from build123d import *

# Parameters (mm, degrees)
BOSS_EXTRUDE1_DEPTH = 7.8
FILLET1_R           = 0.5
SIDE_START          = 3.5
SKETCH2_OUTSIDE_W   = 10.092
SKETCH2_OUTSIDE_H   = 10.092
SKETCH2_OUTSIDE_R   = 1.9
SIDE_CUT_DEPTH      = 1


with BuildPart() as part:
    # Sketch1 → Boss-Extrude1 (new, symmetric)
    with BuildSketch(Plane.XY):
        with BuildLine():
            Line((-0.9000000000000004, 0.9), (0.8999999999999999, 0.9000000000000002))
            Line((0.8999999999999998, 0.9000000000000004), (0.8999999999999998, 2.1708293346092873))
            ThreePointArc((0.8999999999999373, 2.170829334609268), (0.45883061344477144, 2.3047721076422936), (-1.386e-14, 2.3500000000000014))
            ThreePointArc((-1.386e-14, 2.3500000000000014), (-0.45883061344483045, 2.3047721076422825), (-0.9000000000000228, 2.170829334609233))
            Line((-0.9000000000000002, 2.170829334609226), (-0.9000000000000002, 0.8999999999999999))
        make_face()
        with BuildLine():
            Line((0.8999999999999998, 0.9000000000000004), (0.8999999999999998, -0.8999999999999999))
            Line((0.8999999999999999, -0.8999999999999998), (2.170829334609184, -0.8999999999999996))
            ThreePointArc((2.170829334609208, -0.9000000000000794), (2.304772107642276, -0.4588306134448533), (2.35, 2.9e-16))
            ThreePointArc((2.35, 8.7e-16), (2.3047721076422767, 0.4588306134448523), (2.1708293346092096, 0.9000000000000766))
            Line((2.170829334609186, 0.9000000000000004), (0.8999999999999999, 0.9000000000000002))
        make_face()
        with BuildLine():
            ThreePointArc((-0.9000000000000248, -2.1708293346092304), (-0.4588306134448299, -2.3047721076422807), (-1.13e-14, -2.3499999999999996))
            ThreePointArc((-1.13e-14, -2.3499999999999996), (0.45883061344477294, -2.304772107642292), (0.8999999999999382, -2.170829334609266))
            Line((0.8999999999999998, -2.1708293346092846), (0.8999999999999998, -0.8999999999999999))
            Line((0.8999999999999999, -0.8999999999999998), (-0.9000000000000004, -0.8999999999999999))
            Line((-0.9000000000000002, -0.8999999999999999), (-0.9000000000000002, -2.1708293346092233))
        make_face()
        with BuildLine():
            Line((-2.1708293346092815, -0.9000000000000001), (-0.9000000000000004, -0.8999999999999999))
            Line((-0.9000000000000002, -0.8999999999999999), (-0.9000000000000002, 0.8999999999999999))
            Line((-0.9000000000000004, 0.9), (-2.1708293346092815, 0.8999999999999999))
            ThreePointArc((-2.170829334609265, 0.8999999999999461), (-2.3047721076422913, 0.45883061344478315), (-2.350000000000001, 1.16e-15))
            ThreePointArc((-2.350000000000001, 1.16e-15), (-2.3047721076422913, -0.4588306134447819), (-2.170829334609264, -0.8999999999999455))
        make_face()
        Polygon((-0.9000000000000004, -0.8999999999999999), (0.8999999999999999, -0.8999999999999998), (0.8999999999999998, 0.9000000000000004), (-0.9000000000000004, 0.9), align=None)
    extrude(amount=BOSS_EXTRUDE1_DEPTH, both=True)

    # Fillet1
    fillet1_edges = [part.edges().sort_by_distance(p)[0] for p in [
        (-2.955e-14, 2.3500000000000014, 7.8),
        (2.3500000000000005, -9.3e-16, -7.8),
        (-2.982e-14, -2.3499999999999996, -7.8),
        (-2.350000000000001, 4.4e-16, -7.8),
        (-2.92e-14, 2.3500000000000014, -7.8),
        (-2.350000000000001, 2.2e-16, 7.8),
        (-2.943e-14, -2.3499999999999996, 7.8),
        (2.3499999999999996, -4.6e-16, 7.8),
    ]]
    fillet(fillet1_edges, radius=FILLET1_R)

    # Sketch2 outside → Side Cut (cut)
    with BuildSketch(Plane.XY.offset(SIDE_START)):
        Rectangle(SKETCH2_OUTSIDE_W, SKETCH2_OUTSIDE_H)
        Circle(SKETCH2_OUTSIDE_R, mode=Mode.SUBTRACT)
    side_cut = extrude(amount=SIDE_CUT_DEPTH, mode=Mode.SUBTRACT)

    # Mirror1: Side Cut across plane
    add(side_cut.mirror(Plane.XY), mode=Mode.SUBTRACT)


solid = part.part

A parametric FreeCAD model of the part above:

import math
import FreeCAD as App
import Part
import Sketcher
Q = App.Units.Quantity


def edges_at(feature, points):
    """Names of the edges that pass closest to the given points."""
    edges = feature.Shape.Edges
    near = lambda p: min(range(len(edges)), key=lambda i: edges[i].distToShape(Part.Vertex(*p))[0])
    return sorted({f"Edge{near(p) + 1}" for p in points})


def add_polygon(sketch, points):
    """Adds a closed chain of lines whose ends are joined by coincident constraints."""
    first, n = sketch.GeometryCount, len(points)
    for a, b in zip(points, points[1:] + points[:1]):
        sketch.addGeometry(Part.LineSegment(App.Vector(*a, 0), App.Vector(*b, 0)), False)
    for i in range(n):
        sketch.addConstraint(Sketcher.Constraint("Coincident", first + i, 2, first + (i + 1) % n, 1))

doc = App.newDocument("Part")
body = doc.addObject("PartDesign::Body", "Body")

sketch1 = body.newObject("Sketcher::SketchObject", "Sketch")
sketch1.AttachmentSupport = (doc.getObject("XY_Plane"), [""])
sketch1.MapMode = "FlatFace"
sketch1.addGeometry(Part.LineSegment(App.Vector(0.9, 0.9, 0), App.Vector(0.9, 2.2, 0)), False)
sketch1.addGeometry(Part.ArcOfCircle(Part.Circle(App.Vector(0, 0, 0), App.Vector(0, 0, 1), 2.4), math.radians(67), math.radians(113)), False)
sketch1.addGeometry(Part.LineSegment(App.Vector(-0.9, 2.2, 0), App.Vector(-0.9, 0.9, 0)), False)
sketch1.addGeometry(Part.LineSegment(App.Vector(-0.9, 0.9, 0), App.Vector(-2.2, 0.9, 0)), False)
sketch1.addGeometry(Part.ArcOfCircle(Part.Circle(App.Vector(0, 0, 0), App.Vector(0, 0, 1), 2.4), math.radians(157), math.radians(203)), False)
sketch1.addGeometry(Part.LineSegment(App.Vector(-2.2, -0.9, 0), App.Vector(-0.9, -0.9, 0)), False)
sketch1.addGeometry(Part.LineSegment(App.Vector(-0.9, -0.9, 0), App.Vector(-0.9, -2.2, 0)), False)
sketch1.addGeometry(Part.ArcOfCircle(Part.Circle(App.Vector(0, 0, 0), App.Vector(0, 0, 1), 2.4), math.radians(-113), math.radians(-67)), False)
sketch1.addGeometry(Part.LineSegment(App.Vector(0.9, -2.2, 0), App.Vector(0.9, -0.9, 0)), False)
sketch1.addGeometry(Part.LineSegment(App.Vector(0.9, -0.9, 0), App.Vector(2.2, -0.9, 0)), False)
sketch1.addGeometry(Part.ArcOfCircle(Part.Circle(App.Vector(0, 0, 0), App.Vector(0, 0, 1), 2.4), math.radians(-23), math.radians(23)), False)
sketch1.addGeometry(Part.LineSegment(App.Vector(2.2, 0.9, 0), App.Vector(0.9, 0.9, 0)), False)
sketch1.addConstraint(Sketcher.Constraint("Coincident", 0, 2, 1, 1))
sketch1.addConstraint(Sketcher.Constraint("Coincident", 1, 2, 2, 1))
sketch1.addConstraint(Sketcher.Constraint("Coincident", 2, 2, 3, 1))
sketch1.addConstraint(Sketcher.Constraint("Coincident", 3, 2, 4, 1))
sketch1.addConstraint(Sketcher.Constraint("Coincident", 4, 2, 5, 1))
sketch1.addConstraint(Sketcher.Constraint("Coincident", 5, 2, 6, 1))
sketch1.addConstraint(Sketcher.Constraint("Coincident", 6, 2, 7, 1))
sketch1.addConstraint(Sketcher.Constraint("Coincident", 7, 2, 8, 1))
sketch1.addConstraint(Sketcher.Constraint("Coincident", 8, 2, 9, 1))
sketch1.addConstraint(Sketcher.Constraint("Coincident", 9, 2, 10, 1))
sketch1.addConstraint(Sketcher.Constraint("Coincident", 10, 2, 11, 1))
sketch1.addConstraint(Sketcher.Constraint("Coincident", 11, 2, 0, 1))
sketch1.addConstraint(Sketcher.Constraint("Vertical", 0))
sketch1.addConstraint(Sketcher.Constraint("Vertical", 2))
sketch1.addConstraint(Sketcher.Constraint("Horizontal", 3))
sketch1.addConstraint(Sketcher.Constraint("Horizontal", 5))
sketch1.addConstraint(Sketcher.Constraint("Vertical", 6))
sketch1.addConstraint(Sketcher.Constraint("Vertical", 8))
sketch1.addConstraint(Sketcher.Constraint("Horizontal", 9))
sketch1.addConstraint(Sketcher.Constraint("Horizontal", 11))
sketch1.addConstraint(Sketcher.Constraint("Coincident", 1, 3, -1, 1))
sketch1.addConstraint(Sketcher.Constraint("Coincident", 4, 3, -1, 1))
sketch1.addConstraint(Sketcher.Constraint("Coincident", 7, 3, -1, 1))
sketch1.addConstraint(Sketcher.Constraint("Coincident", 10, 3, -1, 1))
sketch1.addConstraint(Sketcher.Constraint("Equal", 1, 4))
sketch1.addConstraint(Sketcher.Constraint("Equal", 4, 7))
sketch1.addConstraint(Sketcher.Constraint("Equal", 7, 10))
sketch1.addConstraint(Sketcher.Constraint("Symmetric", 2, 2, 8, 2, -1, 1))
sketch1.addConstraint(Sketcher.Constraint("Symmetric", 5, 2, 11, 2, -1, 1))
sketch1.addConstraint(Sketcher.Constraint("Symmetric", 5, 2, 8, 2, -2))
sketch1.addConstraint(Sketcher.Constraint("Equal", 11, 0))
sketch1.addConstraint(Sketcher.Constraint("Radius", 1, Q("2.35 mm")))
sketch1.addConstraint(Sketcher.Constraint("DistanceX", -1, 1, 0, 2, Q("0.9 mm")))
pad1 = body.newObject("PartDesign::Pad", "Pad")
pad1.Profile = sketch1
pad1.Length = 15.6
pad1.Midplane = True
doc.recompute()

fillet = body.newObject("PartDesign::Fillet", "Fillet")
fillet.Base = (pad1, edges_at(pad1, [
    (0, 2.35, 7.8),
    (2.35, 0, -7.8),
    (0, -2.35, -7.8),
    (-2.35, 0, -7.8),
    (0, 2.35, -7.8),
    (-2.35, 0, 7.8),
    (0, -2.35, 7.8),
    (2.35, 0, 7.8),
]))
fillet.Radius = 0.5

sketch2 = body.newObject("Sketcher::SketchObject", "Sketch001")
sketch2.AttachmentSupport = (doc.getObject("XY_Plane"), [""])
sketch2.MapMode = "FlatFace"
sketch2.AttachmentOffset = App.Placement(App.Vector(0, 0, 3.5), App.Rotation())
add_polygon(sketch2, [(-5, 5), (-5, -5), (5, -5), (5, 5)])
sketch2.addGeometry(Part.Circle(App.Vector(0, 0, 0), App.Vector(0, 0, 1), 1.9), False)
sketch2.addConstraint(Sketcher.Constraint("Vertical", 0))
sketch2.addConstraint(Sketcher.Constraint("Horizontal", 1))
sketch2.addConstraint(Sketcher.Constraint("Vertical", 2))
sketch2.addConstraint(Sketcher.Constraint("Horizontal", 3))
sketch2.addConstraint(Sketcher.Constraint("Coincident", 4, 3, -1, 1))
sketch2.addConstraint(Sketcher.Constraint("Symmetric", 0, 2, 2, 2, -1, 1))
sketch2.addConstraint(Sketcher.Constraint("Equal", 3, 0))
sketch2.addConstraint(Sketcher.Constraint("Diameter", 4, Q("3.8 mm")))
sketch2.addConstraint(Sketcher.Constraint("DistanceX", 1, 1, 1, 2, Q("10.092 mm")))
pocket1 = body.newObject("PartDesign::Pocket", "Pocket")
pocket1.Profile = sketch2
pocket1.Length = 1
pocket1.Reversed = True
doc.recompute()

mirrored = body.newObject("PartDesign::Mirrored", "Mirrored")
mirrored.Originals = [pocket1]
mirrored.MirrorPlane = (doc.getObject("XY_Plane"), [""])
body.Tip = mirrored

doc.recompute()
